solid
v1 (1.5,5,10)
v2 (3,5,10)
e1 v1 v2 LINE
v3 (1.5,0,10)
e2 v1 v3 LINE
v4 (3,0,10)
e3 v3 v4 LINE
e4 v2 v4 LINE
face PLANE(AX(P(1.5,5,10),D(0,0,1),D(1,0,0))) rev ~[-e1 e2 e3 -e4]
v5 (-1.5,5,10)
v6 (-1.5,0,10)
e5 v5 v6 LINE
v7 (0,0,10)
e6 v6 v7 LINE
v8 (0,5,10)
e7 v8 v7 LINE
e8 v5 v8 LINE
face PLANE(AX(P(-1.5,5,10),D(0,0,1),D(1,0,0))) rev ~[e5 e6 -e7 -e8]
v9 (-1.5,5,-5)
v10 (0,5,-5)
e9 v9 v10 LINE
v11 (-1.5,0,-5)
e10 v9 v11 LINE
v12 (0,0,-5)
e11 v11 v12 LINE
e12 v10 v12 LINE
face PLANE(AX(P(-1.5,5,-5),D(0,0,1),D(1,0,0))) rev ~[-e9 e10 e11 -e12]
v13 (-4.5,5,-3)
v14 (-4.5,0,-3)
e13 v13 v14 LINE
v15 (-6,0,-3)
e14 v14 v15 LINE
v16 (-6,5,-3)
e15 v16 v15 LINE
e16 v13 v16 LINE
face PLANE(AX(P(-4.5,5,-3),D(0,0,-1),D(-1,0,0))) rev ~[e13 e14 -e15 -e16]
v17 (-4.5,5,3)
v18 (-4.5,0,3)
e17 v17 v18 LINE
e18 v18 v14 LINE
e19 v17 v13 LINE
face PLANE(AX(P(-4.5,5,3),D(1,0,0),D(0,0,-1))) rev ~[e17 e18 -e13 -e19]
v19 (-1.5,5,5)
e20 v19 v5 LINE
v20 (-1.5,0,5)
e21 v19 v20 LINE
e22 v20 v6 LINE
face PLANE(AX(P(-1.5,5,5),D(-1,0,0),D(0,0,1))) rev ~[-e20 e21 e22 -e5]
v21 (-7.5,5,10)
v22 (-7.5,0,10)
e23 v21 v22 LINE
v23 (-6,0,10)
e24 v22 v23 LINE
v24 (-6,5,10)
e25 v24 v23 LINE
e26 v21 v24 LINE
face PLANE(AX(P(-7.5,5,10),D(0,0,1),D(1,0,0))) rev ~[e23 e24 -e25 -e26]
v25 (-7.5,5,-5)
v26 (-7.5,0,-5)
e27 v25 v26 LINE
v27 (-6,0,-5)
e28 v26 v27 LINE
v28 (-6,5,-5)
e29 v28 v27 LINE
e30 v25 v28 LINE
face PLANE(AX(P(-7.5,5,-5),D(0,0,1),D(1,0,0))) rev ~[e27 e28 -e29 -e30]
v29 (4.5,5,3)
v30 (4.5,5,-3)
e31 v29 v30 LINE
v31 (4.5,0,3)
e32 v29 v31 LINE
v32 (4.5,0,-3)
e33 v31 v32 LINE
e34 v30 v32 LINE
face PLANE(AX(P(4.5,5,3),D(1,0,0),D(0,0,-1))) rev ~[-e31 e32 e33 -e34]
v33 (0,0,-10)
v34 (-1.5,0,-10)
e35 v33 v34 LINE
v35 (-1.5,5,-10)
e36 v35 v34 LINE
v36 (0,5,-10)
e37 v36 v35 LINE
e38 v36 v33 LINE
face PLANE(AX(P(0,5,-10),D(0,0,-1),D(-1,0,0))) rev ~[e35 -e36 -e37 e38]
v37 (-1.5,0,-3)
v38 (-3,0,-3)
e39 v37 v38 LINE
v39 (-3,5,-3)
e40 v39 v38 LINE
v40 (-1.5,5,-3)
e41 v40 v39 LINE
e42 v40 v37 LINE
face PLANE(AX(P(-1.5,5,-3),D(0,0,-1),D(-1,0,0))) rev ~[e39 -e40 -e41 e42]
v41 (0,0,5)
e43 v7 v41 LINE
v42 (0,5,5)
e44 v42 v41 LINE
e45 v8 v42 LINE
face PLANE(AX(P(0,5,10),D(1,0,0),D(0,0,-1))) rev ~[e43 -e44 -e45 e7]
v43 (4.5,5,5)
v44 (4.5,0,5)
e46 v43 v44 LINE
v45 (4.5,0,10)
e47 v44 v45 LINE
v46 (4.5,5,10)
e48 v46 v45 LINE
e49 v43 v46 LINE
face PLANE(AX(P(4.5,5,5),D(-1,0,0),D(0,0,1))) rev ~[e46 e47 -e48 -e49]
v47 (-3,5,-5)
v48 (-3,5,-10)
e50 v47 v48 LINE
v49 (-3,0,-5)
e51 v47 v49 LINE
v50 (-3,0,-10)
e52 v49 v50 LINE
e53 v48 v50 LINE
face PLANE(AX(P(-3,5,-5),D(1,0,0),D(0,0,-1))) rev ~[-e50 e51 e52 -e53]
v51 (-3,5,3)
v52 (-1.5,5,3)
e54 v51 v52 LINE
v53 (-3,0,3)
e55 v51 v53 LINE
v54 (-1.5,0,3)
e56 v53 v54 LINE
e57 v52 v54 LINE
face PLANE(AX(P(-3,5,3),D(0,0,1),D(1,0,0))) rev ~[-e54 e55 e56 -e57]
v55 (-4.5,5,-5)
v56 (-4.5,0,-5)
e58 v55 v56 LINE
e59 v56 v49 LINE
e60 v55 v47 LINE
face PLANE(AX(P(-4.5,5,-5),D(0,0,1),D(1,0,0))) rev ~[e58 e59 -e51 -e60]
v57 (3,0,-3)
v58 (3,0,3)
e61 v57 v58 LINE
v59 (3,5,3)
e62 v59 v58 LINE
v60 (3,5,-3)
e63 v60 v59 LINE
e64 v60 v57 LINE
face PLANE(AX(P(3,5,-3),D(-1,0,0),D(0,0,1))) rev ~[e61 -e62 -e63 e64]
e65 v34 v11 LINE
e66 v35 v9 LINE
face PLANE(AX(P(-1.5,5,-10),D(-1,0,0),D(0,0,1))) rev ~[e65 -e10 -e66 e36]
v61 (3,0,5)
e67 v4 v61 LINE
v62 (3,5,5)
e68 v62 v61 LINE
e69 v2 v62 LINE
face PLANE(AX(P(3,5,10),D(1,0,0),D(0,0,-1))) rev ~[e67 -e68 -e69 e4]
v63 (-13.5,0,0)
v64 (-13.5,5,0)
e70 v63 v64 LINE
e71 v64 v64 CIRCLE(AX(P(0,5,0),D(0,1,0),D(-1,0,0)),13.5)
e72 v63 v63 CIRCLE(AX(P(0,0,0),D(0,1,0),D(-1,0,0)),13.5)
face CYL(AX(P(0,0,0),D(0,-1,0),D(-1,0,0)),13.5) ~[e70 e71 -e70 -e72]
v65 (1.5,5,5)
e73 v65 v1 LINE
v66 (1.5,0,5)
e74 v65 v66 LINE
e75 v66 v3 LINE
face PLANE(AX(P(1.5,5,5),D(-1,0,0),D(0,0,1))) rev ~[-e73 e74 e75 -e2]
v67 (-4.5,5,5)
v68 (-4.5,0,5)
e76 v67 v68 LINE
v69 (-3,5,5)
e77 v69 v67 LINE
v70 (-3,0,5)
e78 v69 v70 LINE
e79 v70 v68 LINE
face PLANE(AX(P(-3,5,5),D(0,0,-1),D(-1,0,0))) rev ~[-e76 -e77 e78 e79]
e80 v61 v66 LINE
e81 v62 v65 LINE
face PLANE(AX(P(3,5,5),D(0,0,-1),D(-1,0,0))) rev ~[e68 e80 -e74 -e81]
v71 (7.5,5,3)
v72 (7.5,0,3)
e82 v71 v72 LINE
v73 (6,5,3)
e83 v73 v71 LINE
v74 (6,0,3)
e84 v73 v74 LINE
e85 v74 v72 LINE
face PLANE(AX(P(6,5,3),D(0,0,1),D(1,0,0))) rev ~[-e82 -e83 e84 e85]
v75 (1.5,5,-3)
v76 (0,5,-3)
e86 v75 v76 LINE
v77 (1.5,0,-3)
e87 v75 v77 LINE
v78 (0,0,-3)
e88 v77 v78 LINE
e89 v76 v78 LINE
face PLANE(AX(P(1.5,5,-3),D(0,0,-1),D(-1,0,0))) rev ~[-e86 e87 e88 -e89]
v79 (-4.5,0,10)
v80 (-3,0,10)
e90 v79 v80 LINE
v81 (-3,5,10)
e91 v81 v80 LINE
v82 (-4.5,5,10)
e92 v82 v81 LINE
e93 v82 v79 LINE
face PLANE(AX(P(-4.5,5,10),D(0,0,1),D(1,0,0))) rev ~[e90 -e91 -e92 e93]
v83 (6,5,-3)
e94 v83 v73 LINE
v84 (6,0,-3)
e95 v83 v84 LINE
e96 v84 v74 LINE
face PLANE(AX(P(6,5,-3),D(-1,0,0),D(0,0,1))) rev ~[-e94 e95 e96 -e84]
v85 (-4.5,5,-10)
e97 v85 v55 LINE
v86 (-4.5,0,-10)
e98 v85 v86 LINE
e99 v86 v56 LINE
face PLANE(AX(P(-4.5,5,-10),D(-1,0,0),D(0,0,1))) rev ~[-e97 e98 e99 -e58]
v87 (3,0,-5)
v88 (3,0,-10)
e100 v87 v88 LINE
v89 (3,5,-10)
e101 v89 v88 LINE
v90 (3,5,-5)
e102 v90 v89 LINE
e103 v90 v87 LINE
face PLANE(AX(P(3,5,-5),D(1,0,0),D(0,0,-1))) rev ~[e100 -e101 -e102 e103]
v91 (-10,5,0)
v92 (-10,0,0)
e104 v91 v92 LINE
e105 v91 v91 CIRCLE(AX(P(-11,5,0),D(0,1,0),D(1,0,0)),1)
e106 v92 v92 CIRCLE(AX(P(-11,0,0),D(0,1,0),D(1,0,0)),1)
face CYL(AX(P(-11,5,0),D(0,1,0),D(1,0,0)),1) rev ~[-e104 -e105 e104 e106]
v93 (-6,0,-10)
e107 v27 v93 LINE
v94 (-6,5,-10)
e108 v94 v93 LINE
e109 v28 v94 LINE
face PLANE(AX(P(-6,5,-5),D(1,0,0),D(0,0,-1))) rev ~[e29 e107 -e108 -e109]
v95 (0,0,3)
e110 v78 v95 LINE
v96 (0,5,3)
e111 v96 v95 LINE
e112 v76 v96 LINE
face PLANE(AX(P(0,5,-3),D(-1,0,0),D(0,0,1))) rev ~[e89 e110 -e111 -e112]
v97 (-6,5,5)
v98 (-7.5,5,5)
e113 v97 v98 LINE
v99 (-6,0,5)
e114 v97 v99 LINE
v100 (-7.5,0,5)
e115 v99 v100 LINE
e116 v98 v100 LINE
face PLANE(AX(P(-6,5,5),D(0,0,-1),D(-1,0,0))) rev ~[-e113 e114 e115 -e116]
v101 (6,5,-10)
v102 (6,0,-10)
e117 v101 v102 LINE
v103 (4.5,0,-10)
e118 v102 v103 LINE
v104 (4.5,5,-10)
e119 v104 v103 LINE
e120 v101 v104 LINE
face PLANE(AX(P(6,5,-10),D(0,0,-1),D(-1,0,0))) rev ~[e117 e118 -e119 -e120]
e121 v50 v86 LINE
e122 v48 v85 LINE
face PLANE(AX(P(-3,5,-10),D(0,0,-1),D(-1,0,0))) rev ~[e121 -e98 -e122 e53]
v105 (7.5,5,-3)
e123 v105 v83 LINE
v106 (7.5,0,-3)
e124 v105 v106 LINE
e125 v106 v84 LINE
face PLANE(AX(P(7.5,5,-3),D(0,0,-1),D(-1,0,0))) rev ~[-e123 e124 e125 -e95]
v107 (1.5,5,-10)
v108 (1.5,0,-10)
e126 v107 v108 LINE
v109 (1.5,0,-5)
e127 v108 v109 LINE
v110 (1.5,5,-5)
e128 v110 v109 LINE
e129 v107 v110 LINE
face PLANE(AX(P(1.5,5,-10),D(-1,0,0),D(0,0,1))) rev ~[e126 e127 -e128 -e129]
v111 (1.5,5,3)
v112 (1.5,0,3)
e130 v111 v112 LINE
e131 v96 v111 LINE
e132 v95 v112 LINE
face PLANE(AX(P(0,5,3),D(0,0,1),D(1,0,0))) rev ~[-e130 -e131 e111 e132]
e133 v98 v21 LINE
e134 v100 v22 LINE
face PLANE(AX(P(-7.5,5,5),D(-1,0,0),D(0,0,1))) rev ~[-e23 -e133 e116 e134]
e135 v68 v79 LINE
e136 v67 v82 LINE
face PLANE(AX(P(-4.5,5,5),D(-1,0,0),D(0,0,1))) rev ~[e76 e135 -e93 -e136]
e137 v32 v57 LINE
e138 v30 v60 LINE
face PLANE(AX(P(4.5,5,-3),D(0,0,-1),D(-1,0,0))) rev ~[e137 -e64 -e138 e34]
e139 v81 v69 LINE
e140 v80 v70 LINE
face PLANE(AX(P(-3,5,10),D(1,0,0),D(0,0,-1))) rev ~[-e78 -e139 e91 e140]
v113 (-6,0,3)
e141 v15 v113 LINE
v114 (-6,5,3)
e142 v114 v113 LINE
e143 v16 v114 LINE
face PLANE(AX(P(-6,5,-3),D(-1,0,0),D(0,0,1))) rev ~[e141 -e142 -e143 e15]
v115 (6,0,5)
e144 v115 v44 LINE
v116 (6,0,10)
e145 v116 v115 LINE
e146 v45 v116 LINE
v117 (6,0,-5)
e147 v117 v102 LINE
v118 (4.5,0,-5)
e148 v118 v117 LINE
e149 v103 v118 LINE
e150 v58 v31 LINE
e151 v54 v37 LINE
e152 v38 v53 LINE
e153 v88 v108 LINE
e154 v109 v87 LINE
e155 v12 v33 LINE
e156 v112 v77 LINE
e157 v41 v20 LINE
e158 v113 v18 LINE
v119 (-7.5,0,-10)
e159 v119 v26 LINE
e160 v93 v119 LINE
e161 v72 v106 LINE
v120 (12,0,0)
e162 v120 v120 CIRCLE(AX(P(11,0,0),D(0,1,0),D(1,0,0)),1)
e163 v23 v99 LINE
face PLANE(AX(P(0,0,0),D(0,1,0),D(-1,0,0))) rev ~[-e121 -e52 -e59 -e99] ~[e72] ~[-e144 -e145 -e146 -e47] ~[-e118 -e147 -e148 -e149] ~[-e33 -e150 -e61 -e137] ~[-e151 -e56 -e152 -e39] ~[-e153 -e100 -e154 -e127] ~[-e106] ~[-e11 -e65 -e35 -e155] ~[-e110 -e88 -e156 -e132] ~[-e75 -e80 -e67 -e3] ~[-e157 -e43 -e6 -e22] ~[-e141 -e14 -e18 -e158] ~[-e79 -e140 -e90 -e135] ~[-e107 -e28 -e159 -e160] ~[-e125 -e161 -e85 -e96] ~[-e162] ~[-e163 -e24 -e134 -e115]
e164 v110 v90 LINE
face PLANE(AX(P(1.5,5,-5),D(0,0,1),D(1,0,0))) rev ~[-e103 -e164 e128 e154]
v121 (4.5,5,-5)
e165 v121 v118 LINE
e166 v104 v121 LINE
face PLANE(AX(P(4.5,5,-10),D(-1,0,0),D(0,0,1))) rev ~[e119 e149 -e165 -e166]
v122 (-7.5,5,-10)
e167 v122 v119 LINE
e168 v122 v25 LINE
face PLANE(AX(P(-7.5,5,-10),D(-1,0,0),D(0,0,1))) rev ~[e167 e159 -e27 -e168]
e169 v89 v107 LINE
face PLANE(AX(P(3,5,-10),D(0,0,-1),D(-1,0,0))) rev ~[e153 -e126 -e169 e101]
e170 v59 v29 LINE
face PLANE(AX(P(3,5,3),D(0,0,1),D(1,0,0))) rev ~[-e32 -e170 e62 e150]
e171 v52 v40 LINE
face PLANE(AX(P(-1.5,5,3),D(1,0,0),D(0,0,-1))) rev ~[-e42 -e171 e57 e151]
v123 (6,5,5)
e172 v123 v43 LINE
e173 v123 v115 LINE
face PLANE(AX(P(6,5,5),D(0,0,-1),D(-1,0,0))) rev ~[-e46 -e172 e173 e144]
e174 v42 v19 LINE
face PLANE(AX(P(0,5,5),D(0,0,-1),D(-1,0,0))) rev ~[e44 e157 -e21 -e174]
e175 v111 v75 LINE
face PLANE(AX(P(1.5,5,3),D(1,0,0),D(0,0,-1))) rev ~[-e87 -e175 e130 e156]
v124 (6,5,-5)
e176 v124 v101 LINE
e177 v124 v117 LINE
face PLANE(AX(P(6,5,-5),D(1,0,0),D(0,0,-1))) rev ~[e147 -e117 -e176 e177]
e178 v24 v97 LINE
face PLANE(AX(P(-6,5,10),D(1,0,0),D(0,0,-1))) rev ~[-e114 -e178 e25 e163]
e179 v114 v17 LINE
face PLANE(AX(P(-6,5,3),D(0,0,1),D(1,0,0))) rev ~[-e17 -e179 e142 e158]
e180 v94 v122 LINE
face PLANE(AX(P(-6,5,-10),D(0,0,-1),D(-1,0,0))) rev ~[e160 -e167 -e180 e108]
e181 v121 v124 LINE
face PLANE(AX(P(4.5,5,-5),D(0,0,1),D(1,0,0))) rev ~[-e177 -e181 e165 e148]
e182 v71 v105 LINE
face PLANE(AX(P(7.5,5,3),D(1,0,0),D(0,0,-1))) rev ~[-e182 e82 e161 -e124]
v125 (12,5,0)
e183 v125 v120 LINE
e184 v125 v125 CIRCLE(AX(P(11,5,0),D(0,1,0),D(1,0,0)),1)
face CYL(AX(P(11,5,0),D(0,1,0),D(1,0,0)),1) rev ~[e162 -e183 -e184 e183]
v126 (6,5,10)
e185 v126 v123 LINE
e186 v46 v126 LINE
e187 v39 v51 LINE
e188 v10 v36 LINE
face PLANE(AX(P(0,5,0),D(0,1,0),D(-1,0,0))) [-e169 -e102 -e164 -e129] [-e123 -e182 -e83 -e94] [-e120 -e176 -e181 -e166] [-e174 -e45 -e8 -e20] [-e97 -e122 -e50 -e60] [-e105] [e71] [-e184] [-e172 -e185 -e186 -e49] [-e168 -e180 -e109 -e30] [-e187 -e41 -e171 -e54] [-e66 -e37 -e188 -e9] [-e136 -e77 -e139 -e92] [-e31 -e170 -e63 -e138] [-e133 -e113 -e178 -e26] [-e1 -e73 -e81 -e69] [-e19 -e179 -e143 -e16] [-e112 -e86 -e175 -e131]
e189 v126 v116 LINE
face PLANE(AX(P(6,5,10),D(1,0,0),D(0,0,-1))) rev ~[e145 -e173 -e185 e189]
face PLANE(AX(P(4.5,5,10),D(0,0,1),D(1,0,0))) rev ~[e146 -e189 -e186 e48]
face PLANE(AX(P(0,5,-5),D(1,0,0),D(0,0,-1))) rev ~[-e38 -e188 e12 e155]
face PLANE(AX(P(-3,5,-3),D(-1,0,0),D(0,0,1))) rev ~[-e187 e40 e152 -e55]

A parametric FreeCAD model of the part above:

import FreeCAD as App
import Part
import Sketcher
from FreeCAD import Vector
Q = App.Units.Quantity


def add_polygon(sketch, points):
    """Adds a closed chain of lines whose ends are joined by coincident constraints."""
    first, n = sketch.GeometryCount, len(points)
    for a, b in zip(points, points[1:] + points[:1]):
        sketch.addGeometry(Part.LineSegment(App.Vector(*a, 0), App.Vector(*b, 0)), False)
    for i in range(n):
        sketch.addConstraint(Sketcher.Constraint("Coincident", first + i, 2, first + (i + 1) % n, 1))

doc = App.newDocument("Part")
body = doc.addObject("PartDesign::Body", "Body")

# Sketch on XZ plane
sketch1 = doc.addObject("Sketcher::SketchObject", "Sketch")
body.addObject(sketch1)
sketch1.AttachmentSupport = (doc.XZ_Plane, [""])
sketch1.MapMode = "FlatFace"
sketch1.addGeometry(Part.Circle(Vector(0, 0, 0), Vector(0, 0, 1), 14), False)
sketch1.addConstraint(Sketcher.Constraint("Coincident", 0, 3, -1, 1))
sketch1.addConstraint(Sketcher.Constraint("Diameter", 0, Q("27 mm")))
pad1 = doc.addObject("PartDesign::Pad", "Pad")
body.addObject(pad1)
pad1.Profile = sketch1
pad1.Length = 5
pad1.Reversed = True

# Sketch on XZ plane
sketch2 = doc.addObject("Sketcher::SketchObject", "Sketch001")
body.addObject(sketch2)
sketch2.AttachmentSupport = (doc.XZ_Plane, [""])
sketch2.MapMode = "FlatFace"
sketch2.AttachmentOffset = App.Placement(Vector(0, 0, -5), App.Rotation())
add_polygon(sketch2, [(6, 3), (7.5, 3), (7.5, -3), (6, -3)])  # lines 0-3
add_polygon(sketch2, [(4.5, 10), (6, 10), (6, 5), (4.5, 5)])  # lines 4-7
add_polygon(sketch2, [(1.5, 10), (3, 10), (3, 5), (1.5, 5)])  # lines 8-11
add_polygon(sketch2, [(6, -5), (6, -10), (4.5, -10), (4.5, -5)])  # lines 12-15
add_polygon(sketch2, [(-1.5, 10), (0, 10), (0, 5), (-1.5, 5)])  # lines 16-19
add_polygon(sketch2, [(3, -5), (3, -10), (1.5, -10), (1.5, -5)])  # lines 20-23
add_polygon(sketch2, [(-4.5, 10), (-3, 10), (-3, 5), (-4.5, 5)])  # lines 24-27
add_polygon(sketch2, [(0, -5), (0, -10), (-1.5, -10), (-1.5, -5)])  # lines 28-31
add_polygon(sketch2, [(-7.5, 10), (-6, 10), (-6, 5), (-7.5, 5)])  # lines 32-35
add_polygon(sketch2, [(-3, -5), (-3, -10), (-4.5, -10), (-4.5, -5)])  # lines 36-39
add_polygon(sketch2, [(-6, -5), (-6, -10), (-7.5, -10), (-7.5, -5)])  # lines 40-43
add_polygon(sketch2, [(-6, -3), (-6, 3), (-4.5, 3), (-4.5, -3)])  # lines 44-47
add_polygon(sketch2, [(-3, -3), (-3, 3), (-1.5, 3), (-1.5, -3)])  # lines 48-51
add_polygon(sketch2, [(0, -3), (0, 3), (1.5, 3), (1.5, -3)])  # lines 52-55
add_polygon(sketch2, [(3, -3), (3, 3), (4.5, 3), (4.5, -3)])  # lines 56-59
sketch2.addConstraint(Sketcher.Constraint("Horizontal", 0))
sketch2.addConstraint(Sketcher.Constraint("Vertical", 1))
sketch2.addConstraint(Sketcher.Constraint("Horizontal", 2))
sketch2.addConstraint(Sketcher.Constraint("Vertical", 3))
sketch2.addConstraint(Sketcher.Constraint("Horizontal", 4))
sketch2.addConstraint(Sketcher.Constraint("Vertical", 5))
sketch2.addConstraint(Sketcher.Constraint("Horizontal", 6))
sketch2.addConstraint(Sketcher.Constraint("Vertical", 7))
sketch2.addConstraint(Sketcher.Constraint("Horizontal", 8))
sketch2.addConstraint(Sketcher.Constraint("Vertical", 9))
sketch2.addConstraint(Sketcher.Constraint("Horizontal", 10))
sketch2.addConstraint(Sketcher.Constraint("Vertical", 11))
sketch2.addConstraint(Sketcher.Constraint("Vertical", 12))
sketch2.addConstraint(Sketcher.Constraint("Horizontal", 13))
sketch2.addConstraint(Sketcher.Constraint("Vertical", 14))
sketch2.addConstraint(Sketcher.Constraint("Horizontal", 15))
sketch2.addConstraint(Sketcher.Constraint("Horizontal", 16))
sketch2.addConstraint(Sketcher.Constraint("Vertical", 17))
sketch2.addConstraint(Sketcher.Constraint("Horizontal", 18))
sketch2.addConstraint(Sketcher.Constraint("Vertical", 19))
sketch2.addConstraint(Sketcher.Constraint("Vertical", 20))
sketch2.addConstraint(Sketcher.Constraint("Horizontal", 21))
sketch2.addConstraint(Sketcher.Constraint("Vertical", 22))
sketch2.addConstraint(Sketcher.Constraint("Horizontal", 23))
sketch2.addConstraint(Sketcher.Constraint("Horizontal", 24))
sketch2.addConstraint(Sketcher.Constraint("Vertical", 25))
sketch2.addConstraint(Sketcher.Constraint("Horizontal", 26))
sketch2.addConstraint(Sketcher.Constraint("Vertical", 27))
sketch2.addConstraint(Sketcher.Constraint("Vertical", 28))
sketch2.addConstraint(Sketcher.Constraint("Horizontal", 29))
sketch2.addConstraint(Sketcher.Constraint("Vertical", 30))
sketch2.addConstraint(Sketcher.Constraint("Horizontal", 31))
sketch2.addConstraint(Sketcher.Constraint("Horizontal", 32))
sketch2.addConstraint(Sketcher.Constraint("Vertical", 33))
sketch2.addConstraint(Sketcher.Constraint("Horizontal", 34))
sketch2.addConstraint(Sketcher.Constraint("Vertical", 35))
sketch2.addConstraint(Sketcher.Constraint("Vertical", 36))
sketch2.addConstraint(Sketcher.Constraint("Horizontal", 37))
sketch2.addConstraint(Sketcher.Constraint("Vertical", 38))
sketch2.addConstraint(Sketcher.Constraint("Horizontal", 39))
sketch2.addConstraint(Sketcher.Constraint("Vertical", 40))
sketch2.addConstraint(Sketcher.Constraint("Horizontal", 41))
sketch2.addConstraint(Sketcher.Constraint("Vertical", 42))
sketch2.addConstraint(Sketcher.Constraint("Horizontal", 43))
sketch2.addConstraint(Sketcher.Constraint("Vertical", 44))
sketch2.addConstraint(Sketcher.Constraint("Horizontal", 45))
sketch2.addConstraint(Sketcher.Constraint("Vertical", 46))
sketch2.addConstraint(Sketcher.Constraint("Horizontal", 47))
sketch2.addConstraint(Sketcher.Constraint("Vertical", 48))
sketch2.addConstraint(Sketcher.Constraint("Horizontal", 49))
sketch2.addConstraint(Sketcher.Constraint("Vertical", 50))
sketch2.addConstraint(Sketcher.Constraint("Horizontal", 51))
sketch2.addConstraint(Sketcher.Constraint("Vertical", 52))
sketch2.addConstraint(Sketcher.Constraint("Horizontal", 53))
sketch2.addConstraint(Sketcher.Constraint("Vertical", 54))
sketch2.addConstraint(Sketcher.Constraint("Horizontal", 55))
sketch2.addConstraint(Sketcher.Constraint("Vertical", 56))
sketch2.addConstraint(Sketcher.Constraint("Horizontal", 57))
sketch2.addConstraint(Sketcher.Constraint("Vertical", 58))
sketch2.addConstraint(Sketcher.Constraint("Horizontal", 59))
sketch2.addConstraint(Sketcher.Constraint("Symmetric", 19, 2, 21, 2, -1, 1))
sketch2.addConstraint(Sketcher.Constraint("Symmetric", 20, 2, 24, 2, -1, 1))
sketch2.addConstraint(Sketcher.Constraint("Symmetric", 14, 2, 26, 2, -1, 1))
sketch2.addConstraint(Sketcher.Constraint("Symmetric", 16, 2, 28, 2, -1, 1))
sketch2.addConstraint(Sketcher.Constraint("Symmetric", 11, 2, 29, 2, -1, 1))
sketch2.addConstraint(Sketcher.Constraint("Symmetric", 12, 2, 32, 2, -1, 1))
sketch2.addConstraint(Sketcher.Constraint("Symmetric", 8, 2, 36, 2, -1, 1))
sketch2.addConstraint(Sketcher.Constraint("Symmetric", 7, 2, 37, 2, -1, 1))
sketch2.addConstraint(Sketcher.Constraint("Symmetric", 4, 2, 40, 2, -1, 1))
sketch2.addConstraint(Sketcher.Constraint("Symmetric", 2, 2, 44, 2, -1, 1))
sketch2.addConstraint(Sketcher.Constraint("Symmetric", 50, 2, 53, 2, -1, 1))
sketch2.addConstraint(Sketcher.Constraint("Symmetric", 52, 2, 55, 2, -1, 1))
sketch2.addConstraint(Sketcher.Constraint("Symmetric", 51, 2, 56, 2, -1, 1))
sketch2.addConstraint(Sketcher.Constraint("Symmetric", 46, 2, 57, 2, -1, 1))
sketch2.addConstraint(Sketcher.Constraint("Symmetric", 10, 2, 18, 2, -2))
sketch2.addConstraint(Sketcher.Constraint("Symmetric", 9, 2, 25, 2, -2))
sketch2.addConstraint(Sketcher.Constraint("Symmetric", 6, 2, 26, 2, -2))
sketch2.addConstraint(Sketcher.Constraint("Symmetric", 4, 2, 32, 2, -2))
sketch2.addConstraint(Sketcher.Constraint("Symmetric", 17, 2, 31, 2, -1))
sketch2.addConstraint(Sketcher.Constraint("Symmetric", 34, 2, 42, 2, -1))
sketch2.addConstraint(Sketcher.Constraint("Horizontal", 15, 2, 22, 2))
sketch2.addConstraint(Sketcher.Constraint("Horizontal", 26, 2, 33, 2))
sketch2.addConstraint(Sketcher.Constraint("Horizontal", 31, 2, 38, 2))
sketch2.addConstraint(Sketcher.Constraint("Horizontal", 3, 2, 44, 2))
sketch2.addConstraint(Sketcher.Constraint("Horizontal", 2, 2, 46, 2))
sketch2.addConstraint(Sketcher.Constraint("Horizontal", 45, 2, 48, 2))
sketch2.addConstraint(Sketcher.Constraint("Horizontal", 55, 2, 58, 2))
sketch2.addConstraint(Sketcher.Constraint("Vertical", 3, 2, 4, 2))
sketch2.addConstraint(Sketcher.Constraint("Vertical", 38, 2, 45, 2))
sketch2.addConstraint(Sketcher.Constraint("Vertical", 39, 2, 48, 2))
sketch2.addConstraint(Sketcher.Constraint("Vertical", 30, 2, 49, 2))
sketch2.addConstraint(Sketcher.Constraint("Equal", 2, 4))
sketch2.addConstraint(Sketcher.Constraint("Equal", 6, 8))
sketch2.addConstraint(Sketcher.Constraint("Equal", 15, 16))
sketch2.addConstraint(Sketcher.Constraint("Equal", 23, 24))
sketch2.addConstraint(Sketcher.Constraint("Equal", 31, 32))
sketch2.addConstraint(Sketcher.Constraint("DistanceY", 5, 2, 5, 1, Q("5 mm")))
sketch2.addConstraint(Sketcher.Constraint("DistanceX", 0, 1, 0, 2, Q("1.5 mm")))
sketch2.addConstraint(Sketcher.Constraint("DistanceY", -1, 1, 5, 2, Q("5 mm")))
sketch2.addConstraint(Sketcher.Constraint("DistanceY", 3, 2, 5, 2, Q("2 mm")))
pocket1 = doc.addObject("PartDesign::Pocket", "Pocket")
body.addObject(pocket1)
pocket1.Profile = sketch2
pocket1.Length = 5
pocket1.Reversed = True

# Sketch on XZ plane
sketch3 = doc.addObject("Sketcher::SketchObject", "Sketch002")
body.addObject(sketch3)
sketch3.AttachmentSupport = (doc.XZ_Plane, [""])
sketch3.MapMode = "FlatFace"
sketch3.AttachmentOffset = App.Placement(Vector(0, 0, -5), App.Rotation())
sketch3.addGeometry(Part.Circle(Vector(-11, 0, 0), Vector(0, 0, 1), 1), False)
sketch3.addGeometry(Part.Circle(Vector(11, 0, 0), Vector(0, 0, 1), 1), False)
sketch3.addConstraint(Sketcher.Constraint("Equal", 0, 1))
sketch3.addConstraint(Sketcher.Constraint("Symmetric", 0, 3, 1, 3, -1, 1))
sketch3.addConstraint(Sketcher.Constraint("PointOnObject", 0, 3, -1))
sketch3.addConstraint(Sketcher.Constraint("Diameter", 0, Q("2 mm")))
sketch3.addConstraint(Sketcher.Constraint("DistanceX", 0, 3, -1, 1, Q("11 mm")))
pocket2 = doc.addObject("PartDesign::Pocket", "Pocket001")
body.addObject(pocket2)
pocket2.Profile = sketch3
pocket2.Length = 5
pocket2.Reversed = True

doc.recompute()
